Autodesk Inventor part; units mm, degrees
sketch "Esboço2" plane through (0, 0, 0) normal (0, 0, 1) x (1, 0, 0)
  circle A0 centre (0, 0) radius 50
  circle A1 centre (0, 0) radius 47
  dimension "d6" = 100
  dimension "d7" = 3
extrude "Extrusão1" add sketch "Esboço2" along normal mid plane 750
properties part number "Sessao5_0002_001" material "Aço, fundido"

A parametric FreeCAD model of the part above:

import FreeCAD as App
import Part
import Sketcher

doc = App.newDocument("Part")
params = doc.addObject("Spreadsheet::Sheet", "Params")
for row, (alias, value) in enumerate([
    ("sketch1_diameter", "100 mm"),
    ("sketch1_diameter2", "94 mm"),
    ("pad1_length", "750 mm"),
], start=1):
    params.set(f"A{row}", alias)
    params.set(f"B{row}", "=" + value)
    params.setAlias(f"B{row}", alias)

body = doc.addObject("PartDesign::Body", "Body")

sketch1 = body.newObject("Sketcher::SketchObject", "Sketch")
sketch1.AttachmentSupport = (doc.getObject("XY_Plane"), [""])
sketch1.MapMode = "FlatFace"
sketch1.addGeometry([
    Part.Circle(App.Vector(0, 0, 0), App.Vector(0, 0, 1), 50),
    Part.Circle(App.Vector(0, 0, 0), App.Vector(0, 0, 1), 47),
], False)
sketch1.addConstraint([
    Sketcher.Constraint("Coincident", 0, 3, -1, 1),
    Sketcher.Constraint("Coincident", 1, 3, -1, 1),
    Sketcher.Constraint("Diameter", 0, 100.0),
    Sketcher.Constraint("Diameter", 1, 94.0),
])
sketch1.setExpression("Constraints[2]", "Params.sketch1_diameter")
sketch1.setExpression("Constraints[3]", "Params.sketch1_diameter2")
pad1 = body.newObject("PartDesign::Pad", "Pad")
pad1.Profile = sketch1
pad1.setExpression("Length", "Params.pad1_length")
pad1.Midplane = True

doc.recompute()
